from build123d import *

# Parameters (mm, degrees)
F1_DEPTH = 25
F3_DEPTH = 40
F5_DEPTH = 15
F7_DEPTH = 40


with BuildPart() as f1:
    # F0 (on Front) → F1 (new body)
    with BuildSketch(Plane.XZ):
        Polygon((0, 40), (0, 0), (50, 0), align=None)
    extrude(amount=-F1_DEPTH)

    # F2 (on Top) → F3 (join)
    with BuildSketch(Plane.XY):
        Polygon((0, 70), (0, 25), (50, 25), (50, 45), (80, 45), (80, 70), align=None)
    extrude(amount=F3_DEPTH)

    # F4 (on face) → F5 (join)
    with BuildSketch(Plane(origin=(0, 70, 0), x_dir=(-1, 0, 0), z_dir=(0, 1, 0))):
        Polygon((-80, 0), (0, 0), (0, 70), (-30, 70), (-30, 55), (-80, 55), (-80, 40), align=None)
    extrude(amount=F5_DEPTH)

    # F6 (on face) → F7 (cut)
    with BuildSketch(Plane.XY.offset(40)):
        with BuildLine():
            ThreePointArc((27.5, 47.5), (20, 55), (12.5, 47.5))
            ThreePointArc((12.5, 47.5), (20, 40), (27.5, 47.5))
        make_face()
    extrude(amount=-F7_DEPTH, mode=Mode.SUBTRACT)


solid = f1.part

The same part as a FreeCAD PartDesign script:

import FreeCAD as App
import Part
import Sketcher
Q = App.Units.Quantity

doc = App.newDocument("Part")
body = doc.addObject("PartDesign::Body", "Body")

sketch1 = doc.addObject("Sketcher::SketchObject", "Sketch")
body.addObject(sketch1)
sketch1.AttachmentSupport = (doc.XZ_Plane, [""])
sketch1.MapMode = "FlatFace"
sketch1.addGeometry([
    Part.LineSegment(App.Vector(0, 40, 0), App.Vector(0, 0, 0)),
    Part.LineSegment(App.Vector(0, 0, 0), App.Vector(50, 0, 0)),
    Part.LineSegment(App.Vector(50, 0, 0), App.Vector(0, 40, 0)),
], False)
sketch1.addConstraint([
    Sketcher.Constraint("Coincident", 0, 2, 1, 1),
    Sketcher.Constraint("Coincident", 1, 2, 2, 1),
    Sketcher.Constraint("Coincident", 2, 2, 0, 1),
    Sketcher.Constraint("Vertical", 0),
    Sketcher.Constraint("Horizontal", 1),
    Sketcher.Constraint("Coincident", 0, 2, -1, 1),
    Sketcher.Constraint("DistanceX", 1, 1, 1, 2, Q("50 mm")),
    Sketcher.Constraint("DistanceY", 0, 2, 0, 1, Q("40 mm")),
])
pad1 = doc.addObject("PartDesign::Pad", "Pad")
body.addObject(pad1)
pad1.Profile = sketch1
pad1.Length = 25
pad1.Reversed = True

sketch2 = doc.addObject("Sketcher::SketchObject", "Sketch001")
body.addObject(sketch2)
sketch2.AttachmentSupport = (doc.XY_Plane, [""])
sketch2.MapMode = "FlatFace"
sketch2.addGeometry([
    Part.LineSegment(App.Vector(0, 70, 0), App.Vector(0, 25, 0)),
    Part.LineSegment(App.Vector(0, 25, 0), App.Vector(50, 25, 0)),
    Part.LineSegment(App.Vector(50, 25, 0), App.Vector(50, 45, 0)),
    Part.LineSegment(App.Vector(50, 45, 0), App.Vector(80, 45, 0)),
    Part.LineSegment(App.Vector(80, 45, 0), App.Vector(80, 70, 0)),
    Part.LineSegment(App.Vector(80, 70, 0), App.Vector(0, 70, 0)),
], False)
sketch2.addConstraint([
    Sketcher.Constraint("Coincident", 0, 2, 1, 1),
    Sketcher.Constraint("Coincident", 1, 2, 2, 1),
    Sketcher.Constraint("Coincident", 2, 2, 3, 1),
    Sketcher.Constraint("Coincident", 3, 2, 4, 1),
    Sketcher.Constraint("Coincident", 4, 2, 5, 1),
    Sketcher.Constraint("Coincident", 5, 2, 0, 1),
    Sketcher.Constraint("Vertical", 0),
    Sketcher.Constraint("Horizontal", 1),
    Sketcher.Constraint("Vertical", 2),
    Sketcher.Constraint("Horizontal", 3),
    Sketcher.Constraint("Vertical", 4),
    Sketcher.Constraint("Horizontal", 5),
    Sketcher.Constraint("PointOnObject", 0, 2, -2),
    Sketcher.Constraint("DistanceX", 1, 1, 1, 2, Q("50 mm")),
    Sketcher.Constraint("DistanceX", 3, 1, 3, 2, Q("30 mm")),
    Sketcher.Constraint("DistanceY", 0, 2, 0, 1, Q("45 mm")),
    Sketcher.Constraint("DistanceY", 2, 1, 2, 2, Q("20 mm")),
    Sketcher.Constraint("DistanceY", -1, 1, 0, 2, Q("25 mm")),
])
pad2 = doc.addObject("PartDesign::Pad", "Pad001")
body.addObject(pad2)
pad2.Profile = sketch2
pad2.Length = 40

sketch3 = doc.addObject("Sketcher::SketchObject", "Sketch002")
body.addObject(sketch3)
sketch3.AttachmentSupport = (doc.XZ_Plane, [""])
sketch3.MapMode = "FlatFace"
sketch3.AttachmentOffset = App.Placement(App.Vector(0, 0, -70), App.Rotation())
sketch3.addGeometry([
    Part.LineSegment(App.Vector(80, 0, 0), App.Vector(0, 0, 0)),
    Part.LineSegment(App.Vector(0, 0, 0), App.Vector(0, 70, 0)),
    Part.LineSegment(App.Vector(0, 70, 0), App.Vector(30, 70, 0)),
    Part.LineSegment(App.Vector(30, 70, 0), App.Vector(30, 55, 0)),
    Part.LineSegment(App.Vector(30, 55, 0), App.Vector(80, 55, 0)),
    Part.LineSegment(App.Vector(80, 55, 0), App.Vector(80, 0, 0)),
], False)
sketch3.addConstraint([
    Sketcher.Constraint("Coincident", 0, 2, 1, 1),
    Sketcher.Constraint("Coincident", 1, 2, 2, 1),
    Sketcher.Constraint("Coincident", 2, 2, 3, 1),
    Sketcher.Constraint("Coincident", 3, 2, 4, 1),
    Sketcher.Constraint("Coincident", 4, 2, 5, 1),
    Sketcher.Constraint("Coincident", 5, 2, 0, 1),
    Sketcher.Constraint("Horizontal", 0),
    Sketcher.Constraint("Vertical", 1),
    Sketcher.Constraint("Horizontal", 2),
    Sketcher.Constraint("Vertical", 3),
    Sketcher.Constraint("Horizontal", 4),
    Sketcher.Constraint("Vertical", 5),
    Sketcher.Constraint("Coincident", 0, 2, -1, 1),
    Sketcher.Constraint("DistanceX", 0, 2, 0, 1, Q("80 mm")),
    Sketcher.Constraint("DistanceX", 2, 1, 2, 2, Q("30 mm")),
    Sketcher.Constraint("DistanceY", 1, 1, 1, 2, Q("70 mm")),
    Sketcher.Constraint("DistanceY", 3, 2, 3, 1, Q("15 mm")),
])
pad3 = doc.addObject("PartDesign::Pad", "Pad002")
body.addObject(pad3)
pad3.Profile = sketch3
pad3.Length = 15
pad3.Reversed = True

sketch4 = doc.addObject("Sketcher::SketchObject", "Sketch003")
body.addObject(sketch4)
sketch4.AttachmentSupport = (doc.XY_Plane, [""])
sketch4.MapMode = "FlatFace"
sketch4.AttachmentOffset = App.Placement(App.Vector(0, 0, 40), App.Rotation())
sketch4.addGeometry(Part.Circle(App.Vector(20, 47.5, 0), App.Vector(0, 0, 1), 7.5), False)
sketch4.addConstraint([
    Sketcher.Constraint("Diameter", 0, Q("15 mm")),
    Sketcher.Constraint("DistanceX", -1, 1, 0, 3, Q("20 mm")),
    Sketcher.Constraint("DistanceY", -1, 1, 0, 3, Q("47.5 mm")),
])
pocket1 = doc.addObject("PartDesign::Pocket", "Pocket")
body.addObject(pocket1)
pocket1.Profile = sketch4
pocket1.Length = 40

doc.recompute()
